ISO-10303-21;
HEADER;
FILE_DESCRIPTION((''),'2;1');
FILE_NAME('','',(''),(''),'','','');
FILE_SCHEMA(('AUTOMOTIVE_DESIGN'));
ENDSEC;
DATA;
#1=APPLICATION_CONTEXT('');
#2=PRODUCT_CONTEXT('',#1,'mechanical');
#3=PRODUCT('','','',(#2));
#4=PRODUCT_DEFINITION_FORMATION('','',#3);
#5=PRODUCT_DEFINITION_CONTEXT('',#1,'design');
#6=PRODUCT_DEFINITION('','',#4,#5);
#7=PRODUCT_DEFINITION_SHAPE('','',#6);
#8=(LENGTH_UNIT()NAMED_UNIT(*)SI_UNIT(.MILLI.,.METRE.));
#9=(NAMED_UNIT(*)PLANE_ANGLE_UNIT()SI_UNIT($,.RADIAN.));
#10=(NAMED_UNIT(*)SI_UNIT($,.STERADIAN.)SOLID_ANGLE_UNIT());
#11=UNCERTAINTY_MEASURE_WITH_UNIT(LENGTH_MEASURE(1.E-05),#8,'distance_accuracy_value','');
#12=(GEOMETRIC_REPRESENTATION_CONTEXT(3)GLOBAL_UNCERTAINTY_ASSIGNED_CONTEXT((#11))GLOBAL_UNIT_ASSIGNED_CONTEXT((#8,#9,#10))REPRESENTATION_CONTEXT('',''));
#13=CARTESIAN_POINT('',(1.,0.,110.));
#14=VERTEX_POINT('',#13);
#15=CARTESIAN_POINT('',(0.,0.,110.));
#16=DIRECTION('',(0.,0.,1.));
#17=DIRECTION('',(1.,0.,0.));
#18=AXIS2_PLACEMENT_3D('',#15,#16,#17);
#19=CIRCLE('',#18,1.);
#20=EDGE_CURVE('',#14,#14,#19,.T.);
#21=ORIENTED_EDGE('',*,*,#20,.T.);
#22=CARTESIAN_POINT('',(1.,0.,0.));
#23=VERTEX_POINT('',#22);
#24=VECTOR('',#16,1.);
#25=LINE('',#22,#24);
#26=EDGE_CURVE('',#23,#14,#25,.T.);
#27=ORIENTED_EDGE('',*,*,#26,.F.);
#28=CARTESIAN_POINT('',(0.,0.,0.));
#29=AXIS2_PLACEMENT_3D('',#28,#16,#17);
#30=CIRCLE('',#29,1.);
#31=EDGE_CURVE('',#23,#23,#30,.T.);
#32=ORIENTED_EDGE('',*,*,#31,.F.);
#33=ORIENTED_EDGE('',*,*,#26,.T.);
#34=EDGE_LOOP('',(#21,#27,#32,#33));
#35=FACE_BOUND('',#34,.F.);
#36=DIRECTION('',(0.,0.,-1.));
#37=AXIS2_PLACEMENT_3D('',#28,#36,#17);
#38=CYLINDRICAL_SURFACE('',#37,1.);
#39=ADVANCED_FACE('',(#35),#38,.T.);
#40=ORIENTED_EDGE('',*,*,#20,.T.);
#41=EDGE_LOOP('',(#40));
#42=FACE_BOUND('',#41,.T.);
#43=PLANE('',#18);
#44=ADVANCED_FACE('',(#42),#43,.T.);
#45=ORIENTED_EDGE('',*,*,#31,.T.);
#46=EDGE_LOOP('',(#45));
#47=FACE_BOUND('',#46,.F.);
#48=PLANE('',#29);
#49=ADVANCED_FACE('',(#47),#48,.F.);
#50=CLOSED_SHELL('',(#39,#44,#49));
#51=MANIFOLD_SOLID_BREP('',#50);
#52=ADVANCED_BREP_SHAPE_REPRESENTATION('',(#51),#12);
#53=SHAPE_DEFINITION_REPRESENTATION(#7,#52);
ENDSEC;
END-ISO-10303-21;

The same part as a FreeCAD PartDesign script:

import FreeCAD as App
import Part
import Sketcher

V = App.Vector

doc = App.newDocument("Part")
params = doc.addObject("Spreadsheet::Sheet", "Params")
for row, (alias, value) in enumerate([
    ("sketch1_diameter", "2 mm"),
    ("pad1_length", "110 mm"),
], start=1):
    params.set(f"A{row}", alias)
    params.set(f"B{row}", "=" + value)
    params.setAlias(f"B{row}", alias)

body = doc.addObject("PartDesign::Body", "Body")

sketch1 = body.newObject("Sketcher::SketchObject", "Sketch")
sketch1.AttachmentSupport = (doc.getObject("XY_Plane"), [""])
sketch1.MapMode = "FlatFace"
sketch1.addGeometry(Part.Circle(V(0, 0, 0), V(0, 0, 1), 1), False)
sketch1.addConstraint([
    Sketcher.Constraint("Coincident", 0, 3, -1, 1),
    Sketcher.Constraint("Diameter", 0, 2.0),
])
sketch1.setExpression("Constraints[1]", "Params.sketch1_diameter")
pad1 = body.newObject("PartDesign::Pad", "Pad")
pad1.Profile = sketch1
pad1.setExpression("Length", "Params.pad1_length")

doc.recompute()
